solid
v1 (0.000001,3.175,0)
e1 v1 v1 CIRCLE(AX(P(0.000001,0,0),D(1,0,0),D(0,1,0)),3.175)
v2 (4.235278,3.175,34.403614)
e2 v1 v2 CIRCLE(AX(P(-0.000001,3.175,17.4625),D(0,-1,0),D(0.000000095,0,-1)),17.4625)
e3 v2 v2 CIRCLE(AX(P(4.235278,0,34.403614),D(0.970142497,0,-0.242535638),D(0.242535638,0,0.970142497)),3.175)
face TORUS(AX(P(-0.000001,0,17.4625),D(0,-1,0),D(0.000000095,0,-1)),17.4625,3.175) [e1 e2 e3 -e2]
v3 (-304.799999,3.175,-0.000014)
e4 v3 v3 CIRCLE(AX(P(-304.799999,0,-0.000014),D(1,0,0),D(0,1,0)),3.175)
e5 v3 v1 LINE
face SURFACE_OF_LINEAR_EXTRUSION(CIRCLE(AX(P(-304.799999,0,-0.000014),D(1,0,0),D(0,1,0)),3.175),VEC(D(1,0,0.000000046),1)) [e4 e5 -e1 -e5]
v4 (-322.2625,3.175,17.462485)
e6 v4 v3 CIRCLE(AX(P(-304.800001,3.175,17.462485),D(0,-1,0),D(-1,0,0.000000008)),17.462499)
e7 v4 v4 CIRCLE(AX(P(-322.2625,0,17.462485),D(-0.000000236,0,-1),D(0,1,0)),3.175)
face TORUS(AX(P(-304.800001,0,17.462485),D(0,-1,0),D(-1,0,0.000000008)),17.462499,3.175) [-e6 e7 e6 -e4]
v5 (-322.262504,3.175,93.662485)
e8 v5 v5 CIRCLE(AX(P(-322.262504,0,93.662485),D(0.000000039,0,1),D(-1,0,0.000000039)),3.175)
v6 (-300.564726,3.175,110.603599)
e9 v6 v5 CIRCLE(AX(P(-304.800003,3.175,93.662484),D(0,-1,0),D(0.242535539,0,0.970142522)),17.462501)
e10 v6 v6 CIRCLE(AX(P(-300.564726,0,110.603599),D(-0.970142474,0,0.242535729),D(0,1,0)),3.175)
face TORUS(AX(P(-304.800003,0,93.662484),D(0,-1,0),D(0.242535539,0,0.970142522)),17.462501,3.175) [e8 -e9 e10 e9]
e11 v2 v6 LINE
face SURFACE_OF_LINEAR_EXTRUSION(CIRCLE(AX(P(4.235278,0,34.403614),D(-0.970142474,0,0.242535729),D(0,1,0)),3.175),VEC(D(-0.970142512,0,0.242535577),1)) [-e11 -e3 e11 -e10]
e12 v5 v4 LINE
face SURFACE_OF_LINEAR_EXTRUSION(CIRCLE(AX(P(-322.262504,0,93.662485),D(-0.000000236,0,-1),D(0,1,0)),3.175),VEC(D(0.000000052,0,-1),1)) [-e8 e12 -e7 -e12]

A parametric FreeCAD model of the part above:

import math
import FreeCAD as App
import Part
import Sketcher
Q = App.Units.Quantity

doc = App.newDocument("Part")
body = doc.addObject("PartDesign::Body", "Body")

sketch1 = body.newObject("Sketcher::SketchObject", "Sketch")
sketch1.AttachmentSupport = (doc.getObject("YZ_Plane"), [""])
sketch1.MapMode = "FlatFace"
sketch1.addGeometry(Part.Circle(App.Vector(0, 0, 0), App.Vector(0, 0, 1), 3.2), False)
sketch1.addConstraint([
    Sketcher.Constraint("Coincident", 0, 3, -1, 1),
    Sketcher.Constraint("Diameter", 0, Q("0.25 in")),
])

sketch2 = body.newObject("Sketcher::SketchObject", "Sketch001")
sketch2.AttachmentSupport = (doc.getObject("XZ_Plane"), [""])
sketch2.MapMode = "FlatFace"
sketch2.addGeometry([
    Part.LineSegment(App.Vector(-305, 0, 0), App.Vector(0, 0, 0)),
    Part.ArcOfCircle(Part.Circle(App.Vector(0, 17, 0), App.Vector(0, 0, 1), 17), math.radians(-90), math.radians(76)),
    Part.LineSegment(App.Vector(4, 34, 0), App.Vector(-301, 111, 0)),
    Part.ArcOfCircle(Part.Circle(App.Vector(-305, 94, 0), App.Vector(0, 0, 1), 17), math.radians(76), math.radians(180)),
    Part.LineSegment(App.Vector(-322, 94, 0), App.Vector(-322, 17, 0)),
    Part.ArcOfCircle(Part.Circle(App.Vector(-305, 17, 0), App.Vector(0, 0, 1), 17), math.radians(180), math.radians(270)),
], False)
sketch2.addConstraint([
    Sketcher.Constraint("Tangent", 0, 2, 1, 1),
    Sketcher.Constraint("Tangent", 1, 2, 2, 1),
    Sketcher.Constraint("Tangent", 2, 2, 3, 1),
    Sketcher.Constraint("Tangent", 3, 2, 4, 1),
    Sketcher.Constraint("Tangent", 4, 2, 5, 1),
    Sketcher.Constraint("Tangent", 5, 2, 0, 1),
    Sketcher.Constraint("Coincident", 0, 2, -1, 1),
    Sketcher.Constraint("Equal", 1, 3),
    Sketcher.Constraint("Equal", 1, 5),
    Sketcher.Constraint("PointOnObject", 1, 3, -2),
    Sketcher.Constraint("Perpendicular", 0, 4),
    Sketcher.Constraint("Distance", 0, Q("12 in")),
    Sketcher.Constraint("Distance", 4, Q("3 in")),
    Sketcher.Constraint("Radius", 1, Q("0.6875 in")),
])
doc.recompute()

additivepipe = body.newObject("PartDesign::AdditivePipe", "AdditivePipe")
additivepipe.Profile = sketch1
additivepipe.Spine = (sketch2, ["Edge1", "Edge2", "Edge3", "Edge4", "Edge5", "Edge6"])

doc.recompute()
